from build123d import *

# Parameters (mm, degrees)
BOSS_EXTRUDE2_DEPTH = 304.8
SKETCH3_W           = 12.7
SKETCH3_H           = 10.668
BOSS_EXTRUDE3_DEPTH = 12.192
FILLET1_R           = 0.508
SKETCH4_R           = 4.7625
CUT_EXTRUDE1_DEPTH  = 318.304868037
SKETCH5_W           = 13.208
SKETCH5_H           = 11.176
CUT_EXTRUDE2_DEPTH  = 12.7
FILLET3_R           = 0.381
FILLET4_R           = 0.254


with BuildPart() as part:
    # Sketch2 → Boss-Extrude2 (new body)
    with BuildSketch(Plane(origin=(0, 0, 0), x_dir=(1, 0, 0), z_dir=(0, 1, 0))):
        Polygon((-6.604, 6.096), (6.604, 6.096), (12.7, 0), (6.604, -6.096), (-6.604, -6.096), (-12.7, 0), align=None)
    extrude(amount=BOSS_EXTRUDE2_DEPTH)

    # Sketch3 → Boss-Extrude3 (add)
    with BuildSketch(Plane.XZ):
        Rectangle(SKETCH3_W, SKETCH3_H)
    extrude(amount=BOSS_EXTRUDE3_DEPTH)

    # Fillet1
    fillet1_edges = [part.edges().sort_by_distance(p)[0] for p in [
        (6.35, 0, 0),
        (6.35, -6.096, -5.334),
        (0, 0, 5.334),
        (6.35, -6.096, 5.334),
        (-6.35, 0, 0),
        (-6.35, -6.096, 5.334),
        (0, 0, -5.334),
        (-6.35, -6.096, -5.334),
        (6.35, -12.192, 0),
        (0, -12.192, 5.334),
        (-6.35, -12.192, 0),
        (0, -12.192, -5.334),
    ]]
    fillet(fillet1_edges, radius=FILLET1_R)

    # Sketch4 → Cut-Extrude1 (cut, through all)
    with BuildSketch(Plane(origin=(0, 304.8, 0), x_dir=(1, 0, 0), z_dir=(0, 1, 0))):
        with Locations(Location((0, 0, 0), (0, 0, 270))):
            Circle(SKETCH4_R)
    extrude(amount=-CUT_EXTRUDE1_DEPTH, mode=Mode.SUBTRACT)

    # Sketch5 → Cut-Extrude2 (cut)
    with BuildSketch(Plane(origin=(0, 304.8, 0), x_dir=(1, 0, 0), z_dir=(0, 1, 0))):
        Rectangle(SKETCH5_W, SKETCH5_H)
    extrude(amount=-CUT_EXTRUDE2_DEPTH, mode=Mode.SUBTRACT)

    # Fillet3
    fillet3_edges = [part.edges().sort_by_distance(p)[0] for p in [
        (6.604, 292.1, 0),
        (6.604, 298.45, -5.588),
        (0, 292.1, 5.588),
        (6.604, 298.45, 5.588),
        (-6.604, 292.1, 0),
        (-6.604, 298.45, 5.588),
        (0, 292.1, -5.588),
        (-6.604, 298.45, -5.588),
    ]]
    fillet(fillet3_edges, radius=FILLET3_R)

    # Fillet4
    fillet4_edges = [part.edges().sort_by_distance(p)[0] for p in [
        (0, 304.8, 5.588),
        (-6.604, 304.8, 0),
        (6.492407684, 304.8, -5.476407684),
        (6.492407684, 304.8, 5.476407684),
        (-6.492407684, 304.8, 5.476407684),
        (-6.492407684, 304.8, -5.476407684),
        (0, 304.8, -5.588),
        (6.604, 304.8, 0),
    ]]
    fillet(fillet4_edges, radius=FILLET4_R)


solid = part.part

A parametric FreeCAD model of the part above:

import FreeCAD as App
import Part
import Sketcher
Q = App.Units.Quantity


def edges_at(feature, points):
    """Names of the edges that pass closest to the given points."""
    edges = feature.Shape.Edges
    near = lambda p: min(range(len(edges)), key=lambda i: edges[i].distToShape(Part.Vertex(*p))[0])
    return sorted({f"Edge{near(p) + 1}" for p in points})

doc = App.newDocument("Part")
params = doc.addObject("Spreadsheet::Sheet", "Params")
for row, (alias, value) in enumerate([
    ("sketch1_width", "0.52 in"),
    ("pad1_length", "12 in"),
    ("sketch2_width", "0.5 in"),
    ("sketch2_height", "0.42 in"),
    ("pad2_length", "0.48 in"),
    ("fillet_radius", "0.02 in"),
    ("sketch3_diameter", "0.375 in"),
    ("sketch4_width", "0.52 in"),
    ("sketch4_height", "0.44 in"),
    ("pocket2_length", "0.5 in"),
    ("fillet2_radius", "0.015 in"),
    ("fillet3_radius", "0.01 in"),
], start=1):
    params.set(f"A{row}", alias)
    params.set(f"B{row}", "=" + value)
    params.setAlias(f"B{row}", alias)

body = doc.addObject("PartDesign::Body", "Body")

# Sketch on XZ plane
sketch1 = doc.addObject("Sketcher::SketchObject", "Sketch")
body.addObject(sketch1)
sketch1.AttachmentSupport = (doc.XZ_Plane, [""])
sketch1.MapMode = "FlatFace"
sketch1.addGeometry([
    Part.LineSegment(App.Vector(7, -6, 0), App.Vector(-7, -6, 0)),  # 0
    Part.LineSegment(App.Vector(-7, -6, 0), App.Vector(-13, 0, 0)),  # 1
    Part.LineSegment(App.Vector(-13, 0, 0), App.Vector(-7, 6, 0)),  # 2
    Part.LineSegment(App.Vector(-7, 6, 0), App.Vector(7, 6, 0)),  # 3
    Part.LineSegment(App.Vector(7, 6, 0), App.Vector(13, 0, 0)),  # 4
    Part.LineSegment(App.Vector(13, 0, 0), App.Vector(7, -6, 0)),  # 5
], False)
sketch1.addConstraint([
    Sketcher.Constraint("Coincident", 0, 2, 1, 1),
    Sketcher.Constraint("Coincident", 1, 2, 2, 1),
    Sketcher.Constraint("Coincident", 2, 2, 3, 1),
    Sketcher.Constraint("Coincident", 3, 2, 4, 1),
    Sketcher.Constraint("Coincident", 4, 2, 5, 1),
    Sketcher.Constraint("Coincident", 5, 2, 0, 1),
    Sketcher.Constraint("Horizontal", 0),
    Sketcher.Constraint("Horizontal", 3),
    Sketcher.Constraint("Symmetric", 0, 2, 3, 2, -1, 1),
    Sketcher.Constraint("Symmetric", 1, 2, 4, 2, -1, 1),
    Sketcher.Constraint("PointOnObject", 1, 2, -1),
    Sketcher.Constraint("Perpendicular", 1, 2),
    Sketcher.Constraint("Perpendicular", 4, 5),
    Sketcher.Constraint("Vertical", 0, 2, 2, 2),
    Sketcher.Constraint("DistanceX", 1, 2, 4, 2, Q("1 in")),
    Sketcher.Constraint("DistanceX", 0, 2, 0, 1, Q("0.52 in")),
])
sketch1.setExpression("Constraints[15]", "Params.sketch1_width")
pad1 = doc.addObject("PartDesign::Pad", "Pad")
body.addObject(pad1)
pad1.Profile = sketch1
pad1.setExpression("Length", "Params.pad1_length")
pad1.Reversed = True

# Sketch on XZ plane
sketch2 = doc.addObject("Sketcher::SketchObject", "Sketch001")
body.addObject(sketch2)
sketch2.AttachmentSupport = (doc.XZ_Plane, [""])
sketch2.MapMode = "FlatFace"
sketch2.addGeometry([
    Part.LineSegment(App.Vector(-6, 5, 0), App.Vector(-6, -5, 0)),
    Part.LineSegment(App.Vector(-6, -5, 0), App.Vector(6, -5, 0)),
    Part.LineSegment(App.Vector(6, -5, 0), App.Vector(6, 5, 0)),
    Part.LineSegment(App.Vector(6, 5, 0), App.Vector(-6, 5, 0)),
], False)
sketch2.addConstraint([
    Sketcher.Constraint("Coincident", 0, 2, 1, 1),
    Sketcher.Constraint("Coincident", 1, 2, 2, 1),
    Sketcher.Constraint("Coincident", 2, 2, 3, 1),
    Sketcher.Constraint("Coincident", 3, 2, 0, 1),
    Sketcher.Constraint("Vertical", 0),
    Sketcher.Constraint("Horizontal", 1),
    Sketcher.Constraint("Vertical", 2),
    Sketcher.Constraint("Horizontal", 3),
    Sketcher.Constraint("Symmetric", 0, 2, 2, 2, -1, 1),
    Sketcher.Constraint("DistanceX", 1, 1, 1, 2, Q("0.5 in")),
    Sketcher.Constraint("DistanceY", 0, 2, 0, 1, Q("0.42 in")),
])
sketch2.setExpression("Constraints[9]", "Params.sketch2_width")
sketch2.setExpression("Constraints[10]", "Params.sketch2_height")
pad2 = doc.addObject("PartDesign::Pad", "Pad001")
body.addObject(pad2)
pad2.Profile = sketch2
pad2.setExpression("Length", "Params.pad2_length")
doc.recompute()

fillet = doc.addObject("PartDesign::Fillet", "Fillet")
body.addObject(fillet)
fillet.Base = (pad2, edges_at(pad2, [
    (6.35, 0, 0),
    (6.35, -6.096, -5.334),
    (0, 0, 5.334),
    (6.35, -6.096, 5.334),
    (-6.35, 0, 0),
    (-6.35, -6.096, 5.334),
    (0, 0, -5.334),
    (-6.35, -6.096, -5.334),
    (6.35, -12.192, 0),
    (0, -12.192, 5.334),
    (-6.35, -12.192, 0),
    (0, -12.192, -5.334),
]))
fillet.setExpression("Radius", "Params.fillet_radius")

# Sketch on XZ plane
sketch3 = doc.addObject("Sketcher::SketchObject", "Sketch002")
body.addObject(sketch3)
sketch3.AttachmentSupport = (doc.XZ_Plane, [""])
sketch3.MapMode = "FlatFace"
sketch3.AttachmentOffset = App.Placement(App.Vector(0, 0, -12 * 25.4), App.Rotation())
sketch3.addGeometry(Part.Circle(App.Vector(0, 0, 0), App.Vector(0, 0, 1), 4.8), False)
sketch3.addConstraint([
    Sketcher.Constraint("Coincident", 0, 3, -1, 1),
    Sketcher.Constraint("Diameter", 0, Q("0.375 in")),
])
sketch3.setExpression("Constraints[1]", "Params.sketch3_diameter")
pocket1 = doc.addObject("PartDesign::Pocket", "Pocket")
body.addObject(pocket1)
pocket1.Profile = sketch3
pocket1.Type = "ThroughAll"
pocket1.Reversed = True

# Sketch on XZ plane
sketch4 = doc.addObject("Sketcher::SketchObject", "Sketch003")
body.addObject(sketch4)
sketch4.AttachmentSupport = (doc.XZ_Plane, [""])
sketch4.MapMode = "FlatFace"
sketch4.AttachmentOffset = App.Placement(App.Vector(0, 0, -12 * 25.4), App.Rotation())
sketch4.addGeometry([
    Part.LineSegment(App.Vector(-7, -6, 0), App.Vector(-7, 6, 0)),
    Part.LineSegment(App.Vector(-7, 6, 0), App.Vector(7, 6, 0)),
    Part.LineSegment(App.Vector(7, 6, 0), App.Vector(7, -6, 0)),
    Part.LineSegment(App.Vector(7, -6, 0), App.Vector(-7, -6, 0)),
], False)
sketch4.addConstraint([
    Sketcher.Constraint("Coincident", 0, 2, 1, 1),
    Sketcher.Constraint("Coincident", 1, 2, 2, 1),
    Sketcher.Constraint("Coincident", 2, 2, 3, 1),
    Sketcher.Constraint("Coincident", 3, 2, 0, 1),
    Sketcher.Constraint("Vertical", 0),
    Sketcher.Constraint("Horizontal", 1),
    Sketcher.Constraint("Vertical", 2),
    Sketcher.Constraint("Horizontal", 3),
    Sketcher.Constraint("Symmetric", 0, 2, 2, 2, -1, 1),
    Sketcher.Constraint("DistanceX", 1, 1, 1, 2, Q("0.52 in")),
    Sketcher.Constraint("DistanceY", 0, 1, 0, 2, Q("0.44 in")),
])
sketch4.setExpression("Constraints[9]", "Params.sketch4_width")
sketch4.setExpression("Constraints[10]", "Params.sketch4_height")
pocket2 = doc.addObject("PartDesign::Pocket", "Pocket001")
body.addObject(pocket2)
pocket2.Profile = sketch4
pocket2.setExpression("Length", "Params.pocket2_length")
pocket2.Reversed = True
doc.recompute()

fillet2 = doc.addObject("PartDesign::Fillet", "Fillet001")
body.addObject(fillet2)
fillet2.Base = (pocket2, edges_at(pocket2, [
    (6.604, 292.1, 0),
    (6.604, 298.45, -5.588),
    (0, 292.1, 5.588),
    (6.604, 298.45, 5.588),
    (-6.604, 292.1, 0),
    (-6.604, 298.45, 5.588),
    (0, 292.1, -5.588),
    (-6.604, 298.45, -5.588),
]))
fillet2.setExpression("Radius", "Params.fillet2_radius")
doc.recompute()

fillet3 = doc.addObject("PartDesign::Fillet", "Fillet002")
body.addObject(fillet3)
fillet3.Base = (fillet2, edges_at(fillet2, [
    (0, 304.8, 5.588),
    (-6.604, 304.8, 0),
    (6.492, 304.8, -5.476),
    (6.492, 304.8, 5.476),
    (-6.492, 304.8, 5.476),
    (-6.492, 304.8, -5.476),
    (0, 304.8, -5.588),
    (6.604, 304.8, 0),
]))
fillet3.setExpression("Radius", "Params.fillet3_radius")

doc.recompute()
